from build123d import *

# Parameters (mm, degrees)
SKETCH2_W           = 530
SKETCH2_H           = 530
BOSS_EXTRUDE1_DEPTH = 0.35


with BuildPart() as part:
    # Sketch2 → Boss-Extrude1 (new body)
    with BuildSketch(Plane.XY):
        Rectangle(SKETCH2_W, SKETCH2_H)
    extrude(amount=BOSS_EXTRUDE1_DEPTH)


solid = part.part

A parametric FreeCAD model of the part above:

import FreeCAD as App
import Part
import Sketcher
from FreeCAD import Vector
Q = App.Units.Quantity

doc = App.newDocument("Part")
body = doc.addObject("PartDesign::Body", "Body")

sketch1 = doc.addObject("Sketcher::SketchObject", "Sketch")
body.addObject(sketch1)
sketch1.AttachmentSupport = (doc.XY_Plane, [""])
sketch1.MapMode = "FlatFace"
sketch1.addGeometry([
    Part.LineSegment(Vector(-265, 265, 0), Vector(-265, -265, 0)),
    Part.LineSegment(Vector(-265, -265, 0), Vector(265, -265, 0)),
    Part.LineSegment(Vector(265, -265, 0), Vector(265, 265, 0)),
    Part.LineSegment(Vector(265, 265, 0), Vector(-265, 265, 0)),
], False)
sketch1.addConstraint([
    Sketcher.Constraint("Coincident", 0, 2, 1, 1),
    Sketcher.Constraint("Coincident", 1, 2, 2, 1),
    Sketcher.Constraint("Coincident", 2, 2, 3, 1),
    Sketcher.Constraint("Coincident", 3, 2, 0, 1),
    Sketcher.Constraint("Vertical", 0),
    Sketcher.Constraint("Horizontal", 1),
    Sketcher.Constraint("Vertical", 2),
    Sketcher.Constraint("Horizontal", 3),
    Sketcher.Constraint("Symmetric", 0, 2, 2, 2, -1, 1),
    Sketcher.Constraint("Equal", 3, 0),
    Sketcher.Constraint("DistanceX", 1, 1, 1, 2, Q("530 mm")),
])
pad1 = doc.addObject("PartDesign::Pad", "Pad")
body.addObject(pad1)
pad1.Profile = sketch1
pad1.Length = 0.35

doc.recompute()
